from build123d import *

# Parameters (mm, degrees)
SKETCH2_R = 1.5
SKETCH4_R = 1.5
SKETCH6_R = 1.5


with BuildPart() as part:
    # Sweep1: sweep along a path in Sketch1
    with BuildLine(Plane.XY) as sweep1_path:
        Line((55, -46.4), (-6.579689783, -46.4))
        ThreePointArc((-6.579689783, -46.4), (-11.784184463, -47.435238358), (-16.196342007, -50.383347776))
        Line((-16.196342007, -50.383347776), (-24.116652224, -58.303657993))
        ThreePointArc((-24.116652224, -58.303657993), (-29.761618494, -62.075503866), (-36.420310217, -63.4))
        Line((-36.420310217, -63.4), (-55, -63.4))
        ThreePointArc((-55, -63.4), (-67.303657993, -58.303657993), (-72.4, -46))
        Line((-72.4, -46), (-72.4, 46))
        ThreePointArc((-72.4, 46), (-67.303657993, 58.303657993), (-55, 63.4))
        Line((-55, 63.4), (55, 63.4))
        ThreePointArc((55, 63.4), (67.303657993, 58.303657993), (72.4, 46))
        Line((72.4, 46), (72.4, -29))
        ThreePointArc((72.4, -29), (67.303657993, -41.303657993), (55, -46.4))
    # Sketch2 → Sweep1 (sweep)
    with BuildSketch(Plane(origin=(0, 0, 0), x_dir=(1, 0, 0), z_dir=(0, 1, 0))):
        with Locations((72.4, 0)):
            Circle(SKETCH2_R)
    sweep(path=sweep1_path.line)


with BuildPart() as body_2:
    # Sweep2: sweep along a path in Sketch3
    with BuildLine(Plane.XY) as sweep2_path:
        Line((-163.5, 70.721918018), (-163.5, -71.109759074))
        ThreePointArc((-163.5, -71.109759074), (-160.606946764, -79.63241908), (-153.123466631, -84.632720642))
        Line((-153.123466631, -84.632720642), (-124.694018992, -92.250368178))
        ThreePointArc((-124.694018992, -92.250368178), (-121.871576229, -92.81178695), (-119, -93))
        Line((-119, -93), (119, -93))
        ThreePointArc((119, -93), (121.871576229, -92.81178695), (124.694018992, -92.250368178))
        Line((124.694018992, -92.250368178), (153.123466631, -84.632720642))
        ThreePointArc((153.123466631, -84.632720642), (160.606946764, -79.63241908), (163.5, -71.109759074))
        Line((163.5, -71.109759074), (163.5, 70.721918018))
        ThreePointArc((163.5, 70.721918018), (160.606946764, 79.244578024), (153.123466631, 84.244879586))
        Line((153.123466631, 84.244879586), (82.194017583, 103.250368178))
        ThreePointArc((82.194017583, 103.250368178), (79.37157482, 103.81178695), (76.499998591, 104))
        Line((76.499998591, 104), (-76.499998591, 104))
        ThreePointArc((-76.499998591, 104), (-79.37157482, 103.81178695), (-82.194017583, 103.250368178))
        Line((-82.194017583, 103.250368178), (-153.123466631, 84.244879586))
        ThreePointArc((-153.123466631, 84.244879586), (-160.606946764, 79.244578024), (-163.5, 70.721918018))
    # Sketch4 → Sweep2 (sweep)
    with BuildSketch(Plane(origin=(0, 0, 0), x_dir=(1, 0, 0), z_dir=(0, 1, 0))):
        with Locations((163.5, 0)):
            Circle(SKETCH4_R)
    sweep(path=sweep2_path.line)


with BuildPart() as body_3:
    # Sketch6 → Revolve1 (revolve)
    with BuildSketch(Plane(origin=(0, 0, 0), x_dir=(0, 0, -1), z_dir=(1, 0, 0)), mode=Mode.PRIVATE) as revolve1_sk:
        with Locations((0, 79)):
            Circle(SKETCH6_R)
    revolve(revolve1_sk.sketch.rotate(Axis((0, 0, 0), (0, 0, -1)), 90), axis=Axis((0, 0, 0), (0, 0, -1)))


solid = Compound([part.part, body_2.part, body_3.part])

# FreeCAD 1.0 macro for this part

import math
import FreeCAD as App
import Part
import Sketcher
Q = App.Units.Quantity

doc = App.newDocument("Part")
params = doc.addObject("Spreadsheet::Sheet", "Params")
for row, (alias, value) in enumerate([
    ("sketch1_diameter", "3 mm"),
    ("sketch2_radius", "13.6 mm"),
    ("sketch2_radius2", "17.4 mm"),
    ("sketch2_width", "110 mm"),
    ("sketch2_height", "92 mm"),
    ("sketch2_height2", "75 mm"),
    ("sketch3_diameter", "3 mm"),
    ("sketch4_radius", "14 mm"),
    ("sketch4_radius2", "22 mm"),
    ("sketch4_width", "238 mm"),
    ("sketch5_diameter", "3 mm"),
    ("revolution_angle", "360 deg"),
], start=1):
    params.set(f"A{row}", alias)
    params.set(f"B{row}", "=" + value)
    params.setAlias(f"B{row}", alias)

body = doc.addObject("PartDesign::Body", "Body")

sketch1 = body.newObject("Sketcher::SketchObject", "Sketch")
sketch1.AttachmentSupport = (doc.getObject("XZ_Plane"), [""])
sketch1.MapMode = "FlatFace"
sketch1.addGeometry(Part.Circle(App.Vector(72.4, 0, 0), App.Vector(0, 0, 1), 1.5), False)
sketch1.addConstraint(Sketcher.Constraint("PointOnObject", 0, 3, -1))
sketch1.addConstraint(Sketcher.Constraint("Diameter", 0, 3.0))
sketch1.addConstraint(Sketcher.Constraint("DistanceX", -1, 1, 0, 3, 72.4))
sketch1.setExpression("Constraints[1]", "Params.sketch1_diameter")

sketch2 = body.newObject("Sketcher::SketchObject", "Sketch001")
sketch2.AttachmentSupport = (doc.getObject("XY_Plane"), [""])
sketch2.MapMode = "FlatFace"
sketch2.addGeometry(Part.LineSegment(App.Vector(55, -46, 0), App.Vector(-7, -46, 0)), False)
sketch2.addGeometry(Part.ArcOfCircle(Part.Circle(App.Vector(-7, -60, 0), App.Vector(0, 0, 1), 14), math.radians(90), math.radians(135)), False)
sketch2.addGeometry(Part.LineSegment(App.Vector(-16, -50, 0), App.Vector(-24, -58, 0)), False)
sketch2.addGeometry(Part.ArcOfCircle(Part.Circle(App.Vector(-36, -46, 0), App.Vector(0, 0, 1), 17), math.radians(-90), math.radians(-45)), False)
sketch2.addGeometry(Part.LineSegment(App.Vector(-36, -63, 0), App.Vector(-55, -63, 0)), False)
sketch2.addGeometry(Part.ArcOfCircle(Part.Circle(App.Vector(-55, -46, 0), App.Vector(0, 0, 1), 17), math.radians(180), math.radians(270)), False)
sketch2.addGeometry(Part.LineSegment(App.Vector(-72, -46, 0), App.Vector(-72, 46, 0)), False)
sketch2.addGeometry(Part.ArcOfCircle(Part.Circle(App.Vector(-55, 46, 0), App.Vector(0, 0, 1), 17), math.radians(90), math.radians(180)), False)
sketch2.addGeometry(Part.LineSegment(App.Vector(-55, 63, 0), App.Vector(55, 63, 0)), False)
sketch2.addGeometry(Part.ArcOfCircle(Part.Circle(App.Vector(55, 46, 0), App.Vector(0, 0, 1), 17), math.radians(0), math.radians(90)), False)
sketch2.addGeometry(Part.LineSegment(App.Vector(72, 46, 0), App.Vector(72, -29, 0)), False)
sketch2.addGeometry(Part.ArcOfCircle(Part.Circle(App.Vector(55, -29, 0), App.Vector(0, 0, 1), 17), math.radians(-90), math.radians(0)), False)
sketch2.addConstraint(Sketcher.Constraint("Tangent", 0, 2, 1, 1))
sketch2.addConstraint(Sketcher.Constraint("Tangent", 1, 2, 2, 1))
sketch2.addConstraint(Sketcher.Constraint("Tangent", 2, 2, 3, 2))
sketch2.addConstraint(Sketcher.Constraint("Tangent", 3, 1, 4, 1))
sketch2.addConstraint(Sketcher.Constraint("Tangent", 4, 2, 5, 2))
sketch2.addConstraint(Sketcher.Constraint("Tangent", 5, 1, 6, 1))
sketch2.addConstraint(Sketcher.Constraint("Tangent", 6, 2, 7, 2))
sketch2.addConstraint(Sketcher.Constraint("Tangent", 7, 1, 8, 1))
sketch2.addConstraint(Sketcher.Constraint("Tangent", 8, 2, 9, 2))
sketch2.addConstraint(Sketcher.Constraint("Tangent", 9, 1, 10, 1))
sketch2.addConstraint(Sketcher.Constraint("Tangent", 10, 2, 11, 2))
sketch2.addConstraint(Sketcher.Constraint("Tangent", 11, 1, 0, 1))
sketch2.addConstraint(Sketcher.Constraint("Horizontal", 0))
sketch2.addConstraint(Sketcher.Constraint("Horizontal", 4))
sketch2.addConstraint(Sketcher.Constraint("Vertical", 6))
sketch2.addConstraint(Sketcher.Constraint("Horizontal", 8))
sketch2.addConstraint(Sketcher.Constraint("Vertical", 10))
sketch2.addConstraint(Sketcher.Constraint("Equal", 3, 5))
sketch2.addConstraint(Sketcher.Constraint("Equal", 5, 7))
sketch2.addConstraint(Sketcher.Constraint("Equal", 7, 9))
sketch2.addConstraint(Sketcher.Constraint("Equal", 9, 11))
sketch2.addConstraint(Sketcher.Constraint("Symmetric", 5, 3, 9, 3, -1, 1))
sketch2.addConstraint(Sketcher.Constraint("Radius", 1, 13.6))
sketch2.addConstraint(Sketcher.Constraint("Radius", 3, 17.4))
sketch2.addConstraint(Sketcher.Constraint("DistanceX", 8, 1, 8, 2, 110.0))
sketch2.addConstraint(Sketcher.Constraint("DistanceY", 6, 1, 6, 2, 92.0))
sketch2.addConstraint(Sketcher.Constraint("DistanceY", 10, 2, 10, 1, 75.0))
sketch2.addConstraint(Sketcher.Constraint("Angle", 2, Q("-135 deg")))
sketch2.addConstraint(Sketcher.Constraint("DistanceX", 0, 2, 0, 1, 61.57969))
sketch2.setExpression("Constraints[22]", "Params.sketch2_radius")
sketch2.setExpression("Constraints[23]", "Params.sketch2_radius2")
sketch2.setExpression("Constraints[24]", "Params.sketch2_width")
sketch2.setExpression("Constraints[25]", "Params.sketch2_height")
sketch2.setExpression("Constraints[26]", "Params.sketch2_height2")
doc.recompute()

additivepipe = body.newObject("PartDesign::AdditivePipe", "AdditivePipe")
additivepipe.Profile = sketch1
additivepipe.Spine = (sketch2, ["Edge1", "Edge2", "Edge3", "Edge4", "Edge5", "Edge6", "Edge7", "Edge8", "Edge9", "Edge10", "Edge11", "Edge12"])
body2 = doc.addObject("PartDesign::Body", "Body001")

sketch3 = body2.newObject("Sketcher::SketchObject", "Sketch002")
sketch3.AttachmentSupport = (doc.getObject("XZ_Plane001"), [""])
sketch3.MapMode = "FlatFace"
sketch3.addGeometry(Part.Circle(App.Vector(163.5, 0, 0), App.Vector(0, 0, 1), 1.5), False)
sketch3.addConstraint(Sketcher.Constraint("PointOnObject", 0, 3, -1))
sketch3.addConstraint(Sketcher.Constraint("Diameter", 0, 3.0))
sketch3.addConstraint(Sketcher.Constraint("DistanceX", -1, 1, 0, 3, 163.5))
sketch3.setExpression("Constraints[1]", "Params.sketch3_diameter")

sketch4 = body2.newObject("Sketcher::SketchObject", "Sketch003")
sketch4.AttachmentSupport = (doc.getObject("XY_Plane001"), [""])
sketch4.MapMode = "FlatFace"
sketch4.addGeometry(Part.LineSegment(App.Vector(-164, 71, 0), App.Vector(-164, -71, 0)), False)
sketch4.addGeometry(Part.ArcOfCircle(Part.Circle(App.Vector(-150, -71, 0), App.Vector(0, 0, 1), 14), math.radians(180), math.radians(255)), False)
sketch4.addGeometry(Part.LineSegment(App.Vector(-153, -85, 0), App.Vector(-125, -92, 0)), False)
sketch4.addGeometry(Part.ArcOfCircle(Part.Circle(App.Vector(-119, -71, 0), App.Vector(0, 0, 1), 22), math.radians(-105), math.radians(-90)), False)
sketch4.addGeometry(Part.LineSegment(App.Vector(-119, -93, 0), App.Vector(119, -93, 0)), False)
sketch4.addGeometry(Part.ArcOfCircle(Part.Circle(App.Vector(119, -71, 0), App.Vector(0, 0, 1), 22), math.radians(-90), math.radians(-75)), False)
sketch4.addGeometry(Part.LineSegment(App.Vector(125, -92, 0), App.Vector(153, -85, 0)), False)
sketch4.addGeometry(Part.ArcOfCircle(Part.Circle(App.Vector(150, -71, 0), App.Vector(0, 0, 1), 14), math.radians(-75), math.radians(0)), False)
sketch4.addGeometry(Part.LineSegment(App.Vector(164, -71, 0), App.Vector(164, 71, 0)), False)
sketch4.addGeometry(Part.ArcOfCircle(Part.Circle(App.Vector(150, 71, 0), App.Vector(0, 0, 1), 14), math.radians(0), math.radians(75)), False)
sketch4.addGeometry(Part.LineSegment(App.Vector(153, 84, 0), App.Vector(82, 103, 0)), False)
sketch4.addGeometry(Part.ArcOfCircle(Part.Circle(App.Vector(76, 82, 0), App.Vector(0, 0, 1), 22), math.radians(75), math.radians(90)), False)
sketch4.addGeometry(Part.LineSegment(App.Vector(76, 104, 0), App.Vector(-76, 104, 0)), False)
sketch4.addGeometry(Part.ArcOfCircle(Part.Circle(App.Vector(-76, 82, 0), App.Vector(0, 0, 1), 22), math.radians(90), math.radians(105)), False)
sketch4.addGeometry(Part.LineSegment(App.Vector(-82, 103, 0), App.Vector(-153, 84, 0)), False)
sketch4.addGeometry(Part.ArcOfCircle(Part.Circle(App.Vector(-150, 71, 0), App.Vector(0, 0, 1), 14), math.radians(105), math.radians(180)), False)
sketch4.addConstraint(Sketcher.Constraint("Tangent", 0, 2, 1, 1))
sketch4.addConstraint(Sketcher.Constraint("Tangent", 1, 2, 2, 1))
sketch4.addConstraint(Sketcher.Constraint("Tangent", 2, 2, 3, 1))
sketch4.addConstraint(Sketcher.Constraint("Tangent", 3, 2, 4, 1))
sketch4.addConstraint(Sketcher.Constraint("Tangent", 4, 2, 5, 1))
sketch4.addConstraint(Sketcher.Constraint("Tangent", 5, 2, 6, 1))
sketch4.addConstraint(Sketcher.Constraint("Tangent", 6, 2, 7, 1))
sketch4.addConstraint(Sketcher.Constraint("Tangent", 7, 2, 8, 1))
sketch4.addConstraint(Sketcher.Constraint("Tangent", 8, 2, 9, 1))
sketch4.addConstraint(Sketcher.Constraint("Tangent", 9, 2, 10, 1))
sketch4.addConstraint(Sketcher.Constraint("Tangent", 10, 2, 11, 1))
sketch4.addConstraint(Sketcher.Constraint("Tangent", 11, 2, 12, 1))
sketch4.addConstraint(Sketcher.Constraint("Tangent", 12, 2, 13, 1))
sketch4.addConstraint(Sketcher.Constraint("Tangent", 13, 2, 14, 1))
sketch4.addConstraint(Sketcher.Constraint("Tangent", 14, 2, 15, 1))
sketch4.addConstraint(Sketcher.Constraint("Tangent", 15, 2, 0, 1))
sketch4.addConstraint(Sketcher.Constraint("Vertical", 0))
sketch4.addConstraint(Sketcher.Constraint("Horizontal", 4))
sketch4.addConstraint(Sketcher.Constraint("Vertical", 8))
sketch4.addConstraint(Sketcher.Constraint("Horizontal", 12))
sketch4.addConstraint(Sketcher.Constraint("Equal", 3, 5))
sketch4.addConstraint(Sketcher.Constraint("Equal", 1, 7))
sketch4.addConstraint(Sketcher.Constraint("Equal", 7, 9))
sketch4.addConstraint(Sketcher.Constraint("Equal", 5, 11))
sketch4.addConstraint(Sketcher.Constraint("Equal", 11, 13))
sketch4.addConstraint(Sketcher.Constraint("Equal", 9, 15))
sketch4.addConstraint(Sketcher.Constraint("Symmetric", 1, 3, 7, 3, -2))
sketch4.addConstraint(Sketcher.Constraint("Symmetric", 10, 2, 13, 2, -2))
sketch4.addConstraint(Sketcher.Constraint("Parallel", 2, 10))
sketch4.addConstraint(Sketcher.Constraint("Parallel", 6, 14))
sketch4.addConstraint(Sketcher.Constraint("Radius", 1, 14.0))
sketch4.addConstraint(Sketcher.Constraint("Radius", 3, 22.0))
sketch4.addConstraint(Sketcher.Constraint("DistanceX", 4, 1, 4, 2, 238.0))
sketch4.addConstraint(Sketcher.Constraint("Angle", 2, Q("-15 deg")))
sketch4.addConstraint(Sketcher.Constraint("DistanceY", 3, 3, -1, 1, 71.0))
sketch4.addConstraint(Sketcher.Constraint("DistanceY", -1, 1, 11, 3, 82.0))
sketch4.addConstraint(Sketcher.Constraint("DistanceX", 1, 3, 7, 3, 299.0))
sketch4.addConstraint(Sketcher.Constraint("DistanceX", 11, 3, 9, 3, 73.000001))
sketch4.setExpression("Constraints[30]", "Params.sketch4_radius")
sketch4.setExpression("Constraints[31]", "Params.sketch4_radius2")
sketch4.setExpression("Constraints[32]", "Params.sketch4_width")
doc.recompute()

additivepipe2 = body2.newObject("PartDesign::AdditivePipe", "AdditivePipe001")
additivepipe2.Profile = sketch3
additivepipe2.Spine = (sketch4, ["Edge1", "Edge2", "Edge3", "Edge4", "Edge5", "Edge6", "Edge7", "Edge8", "Edge9", "Edge10", "Edge11", "Edge12", "Edge13", "Edge14", "Edge15", "Edge16"])
body3 = doc.addObject("PartDesign::Body", "Body002")

sketch5 = body3.newObject("Sketcher::SketchObject", "Sketch004")
sketch5.AttachmentSupport = (doc.getObject("YZ_Plane002"), [""])
sketch5.MapMode = "FlatFace"
sketch5.addGeometry(Part.Circle(App.Vector(79, 0, 0), App.Vector(0, 0, 1), 1.5), False)
sketch5.addConstraint(Sketcher.Constraint("PointOnObject", 0, 3, -1))
sketch5.addConstraint(Sketcher.Constraint("Diameter", 0, 3.0))
sketch5.addConstraint(Sketcher.Constraint("DistanceX", -1, 1, 0, 3, 79.0))
sketch5.setExpression("Constraints[1]", "Params.sketch5_diameter")
revolution = body3.newObject("PartDesign::Revolution", "Revolution")
revolution.Profile = sketch5
revolution.ReferenceAxis = (sketch5, ["V_Axis"])
revolution.setExpression("Angle", "Params.revolution_angle")

doc.recompute()
